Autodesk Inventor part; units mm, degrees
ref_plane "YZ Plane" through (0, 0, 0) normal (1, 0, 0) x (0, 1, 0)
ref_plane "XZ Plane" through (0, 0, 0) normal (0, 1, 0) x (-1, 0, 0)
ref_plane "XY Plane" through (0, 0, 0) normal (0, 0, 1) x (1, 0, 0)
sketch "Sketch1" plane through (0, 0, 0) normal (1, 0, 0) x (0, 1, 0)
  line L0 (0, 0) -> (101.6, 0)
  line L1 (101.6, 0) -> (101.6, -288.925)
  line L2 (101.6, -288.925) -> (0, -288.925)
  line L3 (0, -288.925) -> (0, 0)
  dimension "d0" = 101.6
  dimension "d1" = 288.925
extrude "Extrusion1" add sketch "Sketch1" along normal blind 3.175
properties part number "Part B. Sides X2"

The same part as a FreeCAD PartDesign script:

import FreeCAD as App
import Part
import Sketcher
from FreeCAD import Vector
Q = App.Units.Quantity

doc = App.newDocument("Part")
body = doc.addObject("PartDesign::Body", "Body")

# Sketch on YZ plane
sketch1 = body.newObject("Sketcher::SketchObject", "Sketch")
sketch1.AttachmentSupport = (doc.getObject("YZ_Plane"), [""])
sketch1.MapMode = "FlatFace"
sketch1.addGeometry(Part.LineSegment(Vector(102, 0, 0), Vector(0, 0, 0)), False)
sketch1.addGeometry(Part.LineSegment(Vector(0, 0, 0), Vector(0, -289, 0)), False)
sketch1.addGeometry(Part.LineSegment(Vector(0, -289, 0), Vector(102, -289, 0)), False)
sketch1.addGeometry(Part.LineSegment(Vector(102, -289, 0), Vector(102, 0, 0)), False)
sketch1.addConstraint(Sketcher.Constraint("Coincident", 0, 2, 1, 1))
sketch1.addConstraint(Sketcher.Constraint("Coincident", 1, 2, 2, 1))
sketch1.addConstraint(Sketcher.Constraint("Coincident", 2, 2, 3, 1))
sketch1.addConstraint(Sketcher.Constraint("Coincident", 3, 2, 0, 1))
sketch1.addConstraint(Sketcher.Constraint("Horizontal", 0))
sketch1.addConstraint(Sketcher.Constraint("Vertical", 1))
sketch1.addConstraint(Sketcher.Constraint("Horizontal", 2))
sketch1.addConstraint(Sketcher.Constraint("Vertical", 3))
sketch1.addConstraint(Sketcher.Constraint("Coincident", 0, 2, -1, 1))
sketch1.addConstraint(Sketcher.Constraint("DistanceX", 0, 2, 0, 1, Q("4 in")))
sketch1.addConstraint(Sketcher.Constraint("DistanceY", 1, 2, 1, 1, Q("11.375 in")))
pad1 = body.newObject("PartDesign::Pad", "Pad")
pad1.Profile = sketch1
pad1.Length = Q("0.125 in")

doc.recompute()
